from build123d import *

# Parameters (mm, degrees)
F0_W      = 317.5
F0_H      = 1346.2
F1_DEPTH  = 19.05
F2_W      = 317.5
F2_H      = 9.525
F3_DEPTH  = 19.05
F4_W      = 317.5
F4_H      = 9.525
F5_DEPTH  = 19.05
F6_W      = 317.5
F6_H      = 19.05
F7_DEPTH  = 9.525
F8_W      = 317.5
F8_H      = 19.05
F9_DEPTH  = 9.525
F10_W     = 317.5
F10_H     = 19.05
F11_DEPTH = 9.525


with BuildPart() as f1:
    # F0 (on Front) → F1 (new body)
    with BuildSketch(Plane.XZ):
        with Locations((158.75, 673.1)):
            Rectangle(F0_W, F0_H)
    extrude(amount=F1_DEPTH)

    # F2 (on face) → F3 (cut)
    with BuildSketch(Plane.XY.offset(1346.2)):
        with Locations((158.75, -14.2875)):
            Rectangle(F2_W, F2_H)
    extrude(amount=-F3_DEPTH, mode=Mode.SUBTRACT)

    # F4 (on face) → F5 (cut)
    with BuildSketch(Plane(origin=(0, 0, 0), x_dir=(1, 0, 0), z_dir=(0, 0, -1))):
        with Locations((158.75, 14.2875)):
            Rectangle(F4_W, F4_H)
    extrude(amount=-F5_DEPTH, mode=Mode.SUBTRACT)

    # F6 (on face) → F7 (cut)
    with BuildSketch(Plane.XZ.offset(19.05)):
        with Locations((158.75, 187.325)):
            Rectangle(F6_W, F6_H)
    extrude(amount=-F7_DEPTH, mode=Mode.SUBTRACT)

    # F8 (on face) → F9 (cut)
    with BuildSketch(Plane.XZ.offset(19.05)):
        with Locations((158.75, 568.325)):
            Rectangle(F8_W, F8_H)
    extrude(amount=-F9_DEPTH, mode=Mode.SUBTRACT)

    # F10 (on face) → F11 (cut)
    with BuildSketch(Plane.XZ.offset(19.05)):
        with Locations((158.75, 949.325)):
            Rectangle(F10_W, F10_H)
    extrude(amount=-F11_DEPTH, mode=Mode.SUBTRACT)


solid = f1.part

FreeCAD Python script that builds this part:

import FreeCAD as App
import Part
import Sketcher
from FreeCAD import Vector
Q = App.Units.Quantity


def add_polygon(sketch, points):
    """Adds a closed chain of lines whose ends are joined by coincident constraints."""
    first, n = sketch.GeometryCount, len(points)
    for a, b in zip(points, points[1:] + points[:1]):
        sketch.addGeometry(Part.LineSegment(App.Vector(*a, 0), App.Vector(*b, 0)), False)
    for i in range(n):
        sketch.addConstraint(Sketcher.Constraint("Coincident", first + i, 2, first + (i + 1) % n, 1))

doc = App.newDocument("Part")
params = doc.addObject("Spreadsheet::Sheet", "Params")
for row, (alias, value) in enumerate([
    ("sketch1_height", "53 in"),
    ("sketch1_width", "12.5 in"),
    ("pad1_length", "0.75 in"),
    ("sketch2_width", "12.5 in"),
    ("sketch2_height", "0.375 in"),
    ("pocket1_length", "0.75 in"),
    ("sketch3_width", "12.5 in"),
    ("sketch3_height", "0.375 in"),
    ("pocket2_length", "0.75 in"),
    ("sketch4_width", "12.5 in"),
    ("sketch4_height", "0.75 in"),
    ("pocket3_length", "0.375 in"),
    ("sketch5_width", "12.5 in"),
    ("sketch5_height", "0.75 in"),
    ("pocket4_length", "0.375 in"),
    ("sketch6_width", "12.5 in"),
    ("sketch6_height", "0.75 in"),
    ("pocket5_length", "0.375 in"),
], start=1):
    params.set(f"A{row}", alias)
    params.set(f"B{row}", "=" + value)
    params.setAlias(f"B{row}", alias)

body = doc.addObject("PartDesign::Body", "Body")

# Sketch on XZ plane
sketch1 = body.newObject("Sketcher::SketchObject", "Sketch")
sketch1.AttachmentSupport = (doc.getObject("XZ_Plane"), [""])
sketch1.MapMode = "FlatFace"
add_polygon(sketch1, [(0, 1346.2), (0, 0), (317.5, 0), (317.5, 1346.2)])  # lines 0-3
sketch1.addConstraint([
    Sketcher.Constraint("Vertical", 0),
    Sketcher.Constraint("Horizontal", 1),
    Sketcher.Constraint("Vertical", 2),
    Sketcher.Constraint("Horizontal", 3),
    Sketcher.Constraint("Coincident", 0, 2, -1, 1),
    Sketcher.Constraint("DistanceY", 0, 2, 0, 1, Q("53 in")),
    Sketcher.Constraint("DistanceX", 1, 1, 1, 2, Q("12.5 in")),
])
sketch1.setExpression("Constraints[9]", "Params.sketch1_height")
sketch1.setExpression("Constraints[10]", "Params.sketch1_width")
pad1 = body.newObject("PartDesign::Pad", "Pad")
pad1.Profile = sketch1
pad1.setExpression("Length", "Params.pad1_length")

# Sketch on XY plane
sketch2 = body.newObject("Sketcher::SketchObject", "Sketch001")
sketch2.AttachmentSupport = (doc.getObject("XY_Plane"), [""])
sketch2.MapMode = "FlatFace"
sketch2.AttachmentOffset = App.Placement(Vector(0, 0, 53 * 25.4), App.Rotation())
add_polygon(sketch2, [(0, -9.525), (0, -19.05), (317.5, -19.05), (317.5, -9.525)])  # lines 0-3
sketch2.addConstraint([
    Sketcher.Constraint("Vertical", 0),
    Sketcher.Constraint("Horizontal", 1),
    Sketcher.Constraint("Vertical", 2),
    Sketcher.Constraint("Horizontal", 3),
    Sketcher.Constraint("PointOnObject", 0, 2, -2),
    Sketcher.Constraint("DistanceX", 1, 1, 1, 2, Q("12.5 in")),
    Sketcher.Constraint("DistanceY", 0, 2, 0, 1, Q("0.375 in")),
    Sketcher.Constraint("DistanceY", 0, 2, -1, 1, Q("0.75 in")),
])
sketch2.setExpression("Constraints[9]", "Params.sketch2_width")
sketch2.setExpression("Constraints[10]", "Params.sketch2_height")
pocket1 = body.newObject("PartDesign::Pocket", "Pocket")
pocket1.Profile = sketch2
pocket1.setExpression("Length", "Params.pocket1_length")

# Sketch on XY plane
sketch3 = body.newObject("Sketcher::SketchObject", "Sketch002")
sketch3.AttachmentSupport = (doc.getObject("XY_Plane"), [""])
sketch3.MapMode = "FlatFace"
add_polygon(sketch3, [(0, -19.05), (0, -9.525), (317.5, -9.525), (317.5, -19.05)])  # lines 0-3
sketch3.addConstraint([
    Sketcher.Constraint("Vertical", 0),
    Sketcher.Constraint("Horizontal", 1),
    Sketcher.Constraint("Vertical", 2),
    Sketcher.Constraint("Horizontal", 3),
    Sketcher.Constraint("PointOnObject", 0, 2, -2),
    Sketcher.Constraint("DistanceX", 1, 1, 1, 2, Q("12.5 in")),
    Sketcher.Constraint("DistanceY", 0, 1, 0, 2, Q("0.375 in")),
    Sketcher.Constraint("DistanceY", 2, 2, -1, 1, Q("0.75 in")),
])
sketch3.setExpression("Constraints[9]", "Params.sketch3_width")
sketch3.setExpression("Constraints[10]", "Params.sketch3_height")
pocket2 = body.newObject("PartDesign::Pocket", "Pocket001")
pocket2.Profile = sketch3
pocket2.setExpression("Length", "Params.pocket2_length")
pocket2.Reversed = True

# Sketch on XZ plane
sketch4 = body.newObject("Sketcher::SketchObject", "Sketch003")
sketch4.AttachmentSupport = (doc.getObject("XZ_Plane"), [""])
sketch4.MapMode = "FlatFace"
sketch4.AttachmentOffset = App.Placement(Vector(0, 0, 0.75 * 25.4), App.Rotation())
add_polygon(sketch4, [(0, 196.85), (0, 177.8), (317.5, 177.8), (317.5, 196.85)])  # lines 0-3
sketch4.addConstraint([
    Sketcher.Constraint("Vertical", 0),
    Sketcher.Constraint("Horizontal", 1),
    Sketcher.Constraint("Vertical", 2),
    Sketcher.Constraint("Horizontal", 3),
    Sketcher.Constraint("PointOnObject", 0, 2, -2),
    Sketcher.Constraint("DistanceX", 1, 1, 1, 2, Q("12.5 in")),
    Sketcher.Constraint("DistanceY", -1, 1, 0, 2, Q("7 in")),
    Sketcher.Constraint("DistanceY", 0, 2, 0, 1, Q("0.75 in")),
])
sketch4.setExpression("Constraints[9]", "Params.sketch4_width")
sketch4.setExpression("Constraints[11]", "Params.sketch4_height")
pocket3 = body.newObject("PartDesign::Pocket", "Pocket002")
pocket3.Profile = sketch4
pocket3.setExpression("Length", "Params.pocket3_length")

# Sketch on XZ plane
sketch5 = body.newObject("Sketcher::SketchObject", "Sketch004")
sketch5.AttachmentSupport = (doc.getObject("XZ_Plane"), [""])
sketch5.MapMode = "FlatFace"
sketch5.AttachmentOffset = App.Placement(Vector(0, 0, 0.75 * 25.4), App.Rotation())
add_polygon(sketch5, [(0, 577.85), (0, 558.8), (317.5, 558.8), (317.5, 577.85)])  # lines 0-3
sketch5.addConstraint([
    Sketcher.Constraint("Vertical", 0),
    Sketcher.Constraint("Horizontal", 1),
    Sketcher.Constraint("Vertical", 2),
    Sketcher.Constraint("Horizontal", 3),
    Sketcher.Constraint("PointOnObject", 0, 2, -2),
    Sketcher.Constraint("DistanceX", 1, 1, 1, 2, Q("12.5 in")),
    Sketcher.Constraint("DistanceY", -1, 1, 0, 2, Q("22 in")),
    Sketcher.Constraint("DistanceY", 0, 2, 0, 1, Q("0.75 in")),
])
sketch5.setExpression("Constraints[9]", "Params.sketch5_width")
sketch5.setExpression("Constraints[11]", "Params.sketch5_height")
pocket4 = body.newObject("PartDesign::Pocket", "Pocket003")
pocket4.Profile = sketch5
pocket4.setExpression("Length", "Params.pocket4_length")

# Sketch on XZ plane
sketch6 = body.newObject("Sketcher::SketchObject", "Sketch005")
sketch6.AttachmentSupport = (doc.getObject("XZ_Plane"), [""])
sketch6.MapMode = "FlatFace"
sketch6.AttachmentOffset = App.Placement(Vector(0, 0, 0.75 * 25.4), App.Rotation())
add_polygon(sketch6, [(0, 958.85), (0, 939.8), (317.5, 939.8), (317.5, 958.85)])  # lines 0-3
sketch6.addConstraint([
    Sketcher.Constraint("Vertical", 0),
    Sketcher.Constraint("Horizontal", 1),
    Sketcher.Constraint("Vertical", 2),
    Sketcher.Constraint("Horizontal", 3),
    Sketcher.Constraint("PointOnObject", 0, 2, -2),
    Sketcher.Constraint("DistanceX", 1, 1, 1, 2, Q("12.5 in")),
    Sketcher.Constraint("DistanceY", -1, 1, 0, 2, Q("37 in")),
    Sketcher.Constraint("DistanceY", 0, 2, 0, 1, Q("0.75 in")),
])
sketch6.setExpression("Constraints[9]", "Params.sketch6_width")
sketch6.setExpression("Constraints[11]", "Params.sketch6_height")
pocket5 = body.newObject("PartDesign::Pocket", "Pocket004")
pocket5.Profile = sketch6
pocket5.setExpression("Length", "Params.pocket5_length")

doc.recompute()
